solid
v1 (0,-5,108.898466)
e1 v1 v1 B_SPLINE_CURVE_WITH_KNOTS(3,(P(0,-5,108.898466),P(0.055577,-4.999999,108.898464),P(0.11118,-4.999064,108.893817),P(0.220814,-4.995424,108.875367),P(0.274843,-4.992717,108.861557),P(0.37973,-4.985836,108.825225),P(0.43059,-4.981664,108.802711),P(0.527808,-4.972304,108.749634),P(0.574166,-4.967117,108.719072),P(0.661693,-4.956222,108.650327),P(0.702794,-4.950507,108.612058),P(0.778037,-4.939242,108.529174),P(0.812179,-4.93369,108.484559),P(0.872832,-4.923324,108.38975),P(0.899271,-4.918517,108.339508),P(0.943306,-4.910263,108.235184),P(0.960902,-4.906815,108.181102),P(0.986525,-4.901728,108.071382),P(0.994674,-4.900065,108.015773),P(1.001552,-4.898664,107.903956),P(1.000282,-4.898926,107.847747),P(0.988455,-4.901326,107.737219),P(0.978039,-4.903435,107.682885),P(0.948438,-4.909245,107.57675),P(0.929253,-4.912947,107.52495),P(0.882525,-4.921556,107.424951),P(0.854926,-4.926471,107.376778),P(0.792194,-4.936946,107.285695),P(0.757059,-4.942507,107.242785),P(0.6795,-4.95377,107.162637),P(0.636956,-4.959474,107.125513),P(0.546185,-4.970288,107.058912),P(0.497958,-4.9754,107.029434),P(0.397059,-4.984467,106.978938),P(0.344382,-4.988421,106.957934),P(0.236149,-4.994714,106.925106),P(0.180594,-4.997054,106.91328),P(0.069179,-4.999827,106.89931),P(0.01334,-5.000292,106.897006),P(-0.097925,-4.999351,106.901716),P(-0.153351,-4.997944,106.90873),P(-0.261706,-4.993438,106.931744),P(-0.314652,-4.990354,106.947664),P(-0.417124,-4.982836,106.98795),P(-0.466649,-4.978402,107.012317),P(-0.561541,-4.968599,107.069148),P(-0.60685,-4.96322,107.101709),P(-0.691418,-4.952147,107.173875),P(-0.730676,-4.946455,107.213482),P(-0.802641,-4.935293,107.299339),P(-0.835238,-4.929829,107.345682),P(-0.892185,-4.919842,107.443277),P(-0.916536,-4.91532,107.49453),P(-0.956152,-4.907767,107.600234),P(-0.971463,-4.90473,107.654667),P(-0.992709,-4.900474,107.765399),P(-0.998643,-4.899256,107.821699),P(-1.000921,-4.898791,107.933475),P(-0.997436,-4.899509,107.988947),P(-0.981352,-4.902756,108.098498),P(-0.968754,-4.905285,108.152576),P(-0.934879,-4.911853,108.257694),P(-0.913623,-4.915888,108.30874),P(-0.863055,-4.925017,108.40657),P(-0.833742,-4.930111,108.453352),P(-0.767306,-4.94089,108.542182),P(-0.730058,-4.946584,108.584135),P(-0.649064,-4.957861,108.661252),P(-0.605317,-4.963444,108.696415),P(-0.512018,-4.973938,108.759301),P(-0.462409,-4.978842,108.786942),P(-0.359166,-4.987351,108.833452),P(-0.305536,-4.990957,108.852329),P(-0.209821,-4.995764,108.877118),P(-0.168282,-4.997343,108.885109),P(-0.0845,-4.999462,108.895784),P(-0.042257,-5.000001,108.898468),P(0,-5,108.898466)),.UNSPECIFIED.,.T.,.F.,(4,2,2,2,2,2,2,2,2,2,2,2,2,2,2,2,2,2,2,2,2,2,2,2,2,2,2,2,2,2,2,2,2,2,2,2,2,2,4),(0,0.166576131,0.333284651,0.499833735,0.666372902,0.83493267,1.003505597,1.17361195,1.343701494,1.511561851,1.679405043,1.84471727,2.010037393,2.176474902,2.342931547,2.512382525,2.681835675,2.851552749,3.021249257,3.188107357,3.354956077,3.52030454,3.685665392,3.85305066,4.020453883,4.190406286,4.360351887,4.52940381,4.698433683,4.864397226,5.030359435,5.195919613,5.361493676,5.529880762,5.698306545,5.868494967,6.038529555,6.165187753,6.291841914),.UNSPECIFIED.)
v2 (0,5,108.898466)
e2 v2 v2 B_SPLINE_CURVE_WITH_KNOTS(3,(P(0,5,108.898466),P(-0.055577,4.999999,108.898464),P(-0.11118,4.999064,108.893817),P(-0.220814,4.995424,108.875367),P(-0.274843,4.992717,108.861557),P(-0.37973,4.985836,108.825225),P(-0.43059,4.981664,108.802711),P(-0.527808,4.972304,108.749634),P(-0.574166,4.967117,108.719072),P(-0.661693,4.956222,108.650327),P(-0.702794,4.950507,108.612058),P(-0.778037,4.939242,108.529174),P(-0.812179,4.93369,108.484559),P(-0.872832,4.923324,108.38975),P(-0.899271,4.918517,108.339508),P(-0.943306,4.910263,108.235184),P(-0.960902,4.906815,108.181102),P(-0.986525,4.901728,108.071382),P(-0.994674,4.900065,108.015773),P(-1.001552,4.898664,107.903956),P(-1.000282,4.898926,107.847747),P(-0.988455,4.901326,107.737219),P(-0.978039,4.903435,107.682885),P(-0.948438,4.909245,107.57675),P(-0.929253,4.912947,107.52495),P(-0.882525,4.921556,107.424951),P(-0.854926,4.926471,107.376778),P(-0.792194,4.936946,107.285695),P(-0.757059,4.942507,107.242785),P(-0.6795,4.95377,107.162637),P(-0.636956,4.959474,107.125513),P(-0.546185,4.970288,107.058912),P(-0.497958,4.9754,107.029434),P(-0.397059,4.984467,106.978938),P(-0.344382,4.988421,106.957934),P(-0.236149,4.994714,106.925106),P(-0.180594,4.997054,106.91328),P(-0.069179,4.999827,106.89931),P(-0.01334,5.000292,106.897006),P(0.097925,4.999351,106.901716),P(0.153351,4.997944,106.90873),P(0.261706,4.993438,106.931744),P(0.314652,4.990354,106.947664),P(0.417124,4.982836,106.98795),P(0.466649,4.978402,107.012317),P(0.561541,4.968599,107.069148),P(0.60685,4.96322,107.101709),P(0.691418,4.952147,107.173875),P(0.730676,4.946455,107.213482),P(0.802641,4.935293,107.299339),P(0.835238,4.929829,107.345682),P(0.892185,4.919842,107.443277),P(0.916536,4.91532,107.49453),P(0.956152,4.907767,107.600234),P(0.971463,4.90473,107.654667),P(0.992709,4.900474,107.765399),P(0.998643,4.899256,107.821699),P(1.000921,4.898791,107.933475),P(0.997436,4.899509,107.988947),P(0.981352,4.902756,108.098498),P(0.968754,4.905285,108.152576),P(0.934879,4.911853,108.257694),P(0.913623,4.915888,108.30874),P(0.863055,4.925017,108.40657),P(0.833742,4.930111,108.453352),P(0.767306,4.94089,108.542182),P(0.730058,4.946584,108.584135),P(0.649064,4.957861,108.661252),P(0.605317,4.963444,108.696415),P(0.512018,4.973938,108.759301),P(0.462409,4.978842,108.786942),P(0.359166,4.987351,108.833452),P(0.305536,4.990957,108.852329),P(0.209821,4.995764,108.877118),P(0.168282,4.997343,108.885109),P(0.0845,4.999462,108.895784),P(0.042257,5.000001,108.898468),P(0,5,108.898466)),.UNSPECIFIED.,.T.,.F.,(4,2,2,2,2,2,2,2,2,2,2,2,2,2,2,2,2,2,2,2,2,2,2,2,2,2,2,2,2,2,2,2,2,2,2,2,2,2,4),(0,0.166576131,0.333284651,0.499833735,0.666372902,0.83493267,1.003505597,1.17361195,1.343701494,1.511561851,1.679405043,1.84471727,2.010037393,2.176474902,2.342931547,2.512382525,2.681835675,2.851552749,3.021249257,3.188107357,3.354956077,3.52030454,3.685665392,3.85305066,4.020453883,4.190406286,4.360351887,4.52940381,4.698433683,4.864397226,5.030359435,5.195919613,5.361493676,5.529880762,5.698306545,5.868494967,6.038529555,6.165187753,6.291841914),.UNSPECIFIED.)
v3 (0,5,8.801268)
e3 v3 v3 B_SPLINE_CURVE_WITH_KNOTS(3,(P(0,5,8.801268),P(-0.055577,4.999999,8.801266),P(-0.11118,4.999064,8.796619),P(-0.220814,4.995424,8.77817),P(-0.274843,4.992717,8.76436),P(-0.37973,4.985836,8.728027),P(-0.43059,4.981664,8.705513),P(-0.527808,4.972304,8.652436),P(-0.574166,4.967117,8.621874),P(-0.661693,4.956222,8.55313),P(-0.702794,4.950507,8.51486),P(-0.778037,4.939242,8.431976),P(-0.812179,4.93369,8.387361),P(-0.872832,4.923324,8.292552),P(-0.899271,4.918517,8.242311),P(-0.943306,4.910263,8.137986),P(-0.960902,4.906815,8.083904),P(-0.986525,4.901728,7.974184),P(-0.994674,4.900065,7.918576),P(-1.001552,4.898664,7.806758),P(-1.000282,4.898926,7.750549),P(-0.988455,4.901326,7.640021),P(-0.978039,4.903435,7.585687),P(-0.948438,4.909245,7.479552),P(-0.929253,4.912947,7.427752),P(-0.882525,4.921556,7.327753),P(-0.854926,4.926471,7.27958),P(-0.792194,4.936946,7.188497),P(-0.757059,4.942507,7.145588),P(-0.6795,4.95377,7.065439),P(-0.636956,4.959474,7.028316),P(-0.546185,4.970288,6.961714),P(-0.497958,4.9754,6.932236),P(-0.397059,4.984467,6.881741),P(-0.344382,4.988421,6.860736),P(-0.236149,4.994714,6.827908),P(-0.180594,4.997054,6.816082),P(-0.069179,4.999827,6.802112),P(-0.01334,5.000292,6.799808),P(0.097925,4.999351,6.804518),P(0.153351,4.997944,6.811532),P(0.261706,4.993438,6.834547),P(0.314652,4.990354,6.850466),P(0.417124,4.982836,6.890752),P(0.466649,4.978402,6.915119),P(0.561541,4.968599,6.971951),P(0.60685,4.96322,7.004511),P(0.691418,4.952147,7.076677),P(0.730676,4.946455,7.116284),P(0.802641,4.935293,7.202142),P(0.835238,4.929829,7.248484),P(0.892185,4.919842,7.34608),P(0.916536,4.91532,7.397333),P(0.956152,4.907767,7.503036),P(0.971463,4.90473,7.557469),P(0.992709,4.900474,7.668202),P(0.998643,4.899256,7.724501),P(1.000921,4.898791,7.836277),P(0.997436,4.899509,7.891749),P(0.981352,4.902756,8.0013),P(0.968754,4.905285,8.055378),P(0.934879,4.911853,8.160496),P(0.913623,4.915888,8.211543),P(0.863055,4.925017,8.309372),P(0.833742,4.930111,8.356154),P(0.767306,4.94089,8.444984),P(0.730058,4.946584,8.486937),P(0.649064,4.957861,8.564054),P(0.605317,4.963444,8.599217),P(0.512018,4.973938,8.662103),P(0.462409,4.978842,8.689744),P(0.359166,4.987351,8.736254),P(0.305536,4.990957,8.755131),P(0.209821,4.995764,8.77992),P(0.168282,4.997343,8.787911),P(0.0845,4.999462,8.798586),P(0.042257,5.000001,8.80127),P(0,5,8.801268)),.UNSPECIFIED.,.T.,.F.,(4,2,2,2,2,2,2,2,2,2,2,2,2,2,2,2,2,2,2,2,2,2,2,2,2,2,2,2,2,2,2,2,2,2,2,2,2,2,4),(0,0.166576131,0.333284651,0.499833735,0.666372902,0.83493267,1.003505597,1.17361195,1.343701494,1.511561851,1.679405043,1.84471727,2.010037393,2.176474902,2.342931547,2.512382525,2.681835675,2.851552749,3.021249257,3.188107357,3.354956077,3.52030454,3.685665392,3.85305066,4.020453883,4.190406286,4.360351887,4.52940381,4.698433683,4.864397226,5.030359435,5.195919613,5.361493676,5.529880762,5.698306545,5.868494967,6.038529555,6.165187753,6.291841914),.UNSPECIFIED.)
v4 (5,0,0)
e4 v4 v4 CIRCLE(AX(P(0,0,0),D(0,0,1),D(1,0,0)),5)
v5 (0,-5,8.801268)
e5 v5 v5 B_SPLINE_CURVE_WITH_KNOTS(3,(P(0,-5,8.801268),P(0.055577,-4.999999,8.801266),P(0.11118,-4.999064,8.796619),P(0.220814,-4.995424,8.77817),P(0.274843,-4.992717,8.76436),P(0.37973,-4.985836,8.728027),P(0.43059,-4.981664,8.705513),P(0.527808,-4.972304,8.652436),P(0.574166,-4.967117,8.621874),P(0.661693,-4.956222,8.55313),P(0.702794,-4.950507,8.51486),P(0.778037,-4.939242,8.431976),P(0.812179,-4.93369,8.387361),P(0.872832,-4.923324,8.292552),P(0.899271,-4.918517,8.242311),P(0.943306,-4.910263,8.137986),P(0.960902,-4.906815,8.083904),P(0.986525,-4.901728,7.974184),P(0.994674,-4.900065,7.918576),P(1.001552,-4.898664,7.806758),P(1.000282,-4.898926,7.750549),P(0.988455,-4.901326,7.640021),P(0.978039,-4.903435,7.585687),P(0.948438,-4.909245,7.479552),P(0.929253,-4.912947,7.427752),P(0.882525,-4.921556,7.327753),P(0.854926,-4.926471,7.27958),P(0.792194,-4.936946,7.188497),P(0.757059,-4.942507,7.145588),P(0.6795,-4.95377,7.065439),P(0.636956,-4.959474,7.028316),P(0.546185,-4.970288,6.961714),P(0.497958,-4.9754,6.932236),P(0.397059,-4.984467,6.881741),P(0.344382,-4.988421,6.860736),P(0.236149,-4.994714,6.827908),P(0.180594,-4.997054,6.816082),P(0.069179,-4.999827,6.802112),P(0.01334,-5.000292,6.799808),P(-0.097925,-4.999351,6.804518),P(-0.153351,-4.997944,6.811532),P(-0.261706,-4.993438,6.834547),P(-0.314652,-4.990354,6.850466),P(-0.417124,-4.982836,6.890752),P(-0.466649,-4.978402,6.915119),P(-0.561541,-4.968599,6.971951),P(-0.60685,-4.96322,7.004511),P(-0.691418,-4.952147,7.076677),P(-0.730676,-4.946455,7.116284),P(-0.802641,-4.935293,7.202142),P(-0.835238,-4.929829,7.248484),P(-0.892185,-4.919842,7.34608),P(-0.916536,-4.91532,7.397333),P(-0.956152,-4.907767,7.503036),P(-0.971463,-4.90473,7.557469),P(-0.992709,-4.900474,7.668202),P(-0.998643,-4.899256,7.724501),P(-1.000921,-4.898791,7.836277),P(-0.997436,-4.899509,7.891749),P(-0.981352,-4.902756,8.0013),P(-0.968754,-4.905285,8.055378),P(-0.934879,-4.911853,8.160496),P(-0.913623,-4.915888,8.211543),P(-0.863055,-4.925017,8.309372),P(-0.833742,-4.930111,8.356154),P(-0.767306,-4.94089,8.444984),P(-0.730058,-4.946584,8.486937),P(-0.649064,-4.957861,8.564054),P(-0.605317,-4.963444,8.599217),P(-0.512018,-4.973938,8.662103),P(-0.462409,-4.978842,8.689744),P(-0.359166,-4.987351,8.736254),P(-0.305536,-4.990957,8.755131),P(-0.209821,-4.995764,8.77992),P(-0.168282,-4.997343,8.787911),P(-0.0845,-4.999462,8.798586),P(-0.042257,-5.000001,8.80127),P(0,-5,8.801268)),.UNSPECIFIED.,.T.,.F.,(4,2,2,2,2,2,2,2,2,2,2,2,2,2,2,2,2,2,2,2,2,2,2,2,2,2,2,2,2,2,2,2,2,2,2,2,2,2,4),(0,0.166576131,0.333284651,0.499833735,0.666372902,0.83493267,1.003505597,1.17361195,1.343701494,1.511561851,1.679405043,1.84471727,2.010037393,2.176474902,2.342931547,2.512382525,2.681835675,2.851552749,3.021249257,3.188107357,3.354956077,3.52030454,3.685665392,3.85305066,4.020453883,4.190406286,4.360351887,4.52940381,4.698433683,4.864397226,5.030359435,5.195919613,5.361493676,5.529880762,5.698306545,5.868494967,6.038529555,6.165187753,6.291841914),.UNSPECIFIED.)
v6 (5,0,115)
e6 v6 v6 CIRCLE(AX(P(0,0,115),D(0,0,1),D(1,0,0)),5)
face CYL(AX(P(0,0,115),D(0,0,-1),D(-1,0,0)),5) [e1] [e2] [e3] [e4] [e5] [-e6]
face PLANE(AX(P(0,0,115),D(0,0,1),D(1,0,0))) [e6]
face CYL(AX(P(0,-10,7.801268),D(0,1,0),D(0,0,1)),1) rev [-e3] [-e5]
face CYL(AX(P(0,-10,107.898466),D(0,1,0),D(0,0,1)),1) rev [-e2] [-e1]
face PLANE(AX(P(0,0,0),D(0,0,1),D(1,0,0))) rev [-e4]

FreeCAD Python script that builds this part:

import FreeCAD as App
import Part
import Sketcher
Q = App.Units.Quantity

doc = App.newDocument("Part")
body = doc.addObject("PartDesign::Body", "Body")

# Sketch on XY plane
sketch1 = body.newObject("Sketcher::SketchObject", "Sketch")
sketch1.AttachmentSupport = (doc.getObject("XY_Plane"), [""])
sketch1.MapMode = "FlatFace"
sketch1.addGeometry(Part.Circle(App.Vector(0, 0, 0), App.Vector(0, 0, 1), 5), False)
sketch1.addConstraint(Sketcher.Constraint("Coincident", 0, 3, -1, 1))
sketch1.addConstraint(Sketcher.Constraint("Diameter", 0, Q("10 mm")))
pad1 = body.newObject("PartDesign::Pad", "Pad")
pad1.Profile = sketch1
pad1.Length = 115

# Sketch on XZ plane
sketch2 = body.newObject("Sketcher::SketchObject", "Sketch001")
sketch2.AttachmentSupport = (doc.getObject("XZ_Plane"), [""])
sketch2.MapMode = "FlatFace"
sketch2.addGeometry(Part.Circle(App.Vector(0, 7.801268, 0), App.Vector(0, 0, 1), 1), False)
sketch2.addConstraint(Sketcher.Constraint("PointOnObject", 0, 3, -2))
sketch2.addConstraint(Sketcher.Constraint("Diameter", 0, Q("2 mm")))
sketch2.addConstraint(Sketcher.Constraint("DistanceY", -1, 1, 0, 3, Q("7.801268 mm")))
pocket1 = body.newObject("PartDesign::Pocket", "Pocket")
pocket1.Profile = sketch2
pocket1.Length = 20
pocket1.Midplane = True

# Sketch on XZ plane
sketch3 = body.newObject("Sketcher::SketchObject", "Sketch002")
sketch3.AttachmentSupport = (doc.getObject("XZ_Plane"), [""])
sketch3.MapMode = "FlatFace"
sketch3.addGeometry(Part.Circle(App.Vector(0, 107.898466, 0), App.Vector(0, 0, 1), 1), False)
sketch3.addConstraint(Sketcher.Constraint("PointOnObject", 0, 3, -2))
sketch3.addConstraint(Sketcher.Constraint("Diameter", 0, Q("2 mm")))
sketch3.addConstraint(Sketcher.Constraint("DistanceY", -1, 1, 0, 3, Q("107.898466 mm")))
pocket2 = body.newObject("PartDesign::Pocket", "Pocket001")
pocket2.Profile = sketch3
pocket2.Length = 20
pocket2.Midplane = True

doc.recompute()
